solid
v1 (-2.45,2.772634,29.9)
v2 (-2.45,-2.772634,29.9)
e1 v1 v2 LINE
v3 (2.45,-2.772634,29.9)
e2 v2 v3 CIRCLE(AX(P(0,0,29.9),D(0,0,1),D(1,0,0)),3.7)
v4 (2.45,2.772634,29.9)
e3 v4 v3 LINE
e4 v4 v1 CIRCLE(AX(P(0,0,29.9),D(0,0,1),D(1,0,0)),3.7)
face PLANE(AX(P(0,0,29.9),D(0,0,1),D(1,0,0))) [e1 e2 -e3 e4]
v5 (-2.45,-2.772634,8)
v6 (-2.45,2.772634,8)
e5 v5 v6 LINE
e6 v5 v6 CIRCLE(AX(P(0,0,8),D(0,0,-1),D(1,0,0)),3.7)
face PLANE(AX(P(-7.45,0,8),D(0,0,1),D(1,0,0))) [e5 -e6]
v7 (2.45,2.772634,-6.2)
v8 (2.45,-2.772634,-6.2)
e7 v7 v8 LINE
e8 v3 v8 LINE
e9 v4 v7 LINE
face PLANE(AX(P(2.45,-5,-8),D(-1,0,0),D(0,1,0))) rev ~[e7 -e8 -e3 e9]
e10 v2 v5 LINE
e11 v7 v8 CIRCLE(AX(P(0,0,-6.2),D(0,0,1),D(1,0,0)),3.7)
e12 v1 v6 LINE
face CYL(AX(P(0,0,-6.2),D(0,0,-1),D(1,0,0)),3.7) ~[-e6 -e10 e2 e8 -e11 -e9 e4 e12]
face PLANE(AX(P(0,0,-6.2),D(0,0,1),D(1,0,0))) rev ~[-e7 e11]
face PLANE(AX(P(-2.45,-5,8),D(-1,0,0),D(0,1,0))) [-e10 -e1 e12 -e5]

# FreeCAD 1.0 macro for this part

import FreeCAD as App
import Part
import Sketcher
Q = App.Units.Quantity


def add_polygon(sketch, points):
    """Adds a closed chain of lines whose ends are joined by coincident constraints."""
    first, n = sketch.GeometryCount, len(points)
    for a, b in zip(points, points[1:] + points[:1]):
        sketch.addGeometry(Part.LineSegment(App.Vector(*a, 0), App.Vector(*b, 0)), False)
    for i in range(n):
        sketch.addConstraint(Sketcher.Constraint("Coincident", first + i, 2, first + (i + 1) % n, 1))

doc = App.newDocument("Part")
body = doc.addObject("PartDesign::Body", "Body")

sketch1 = body.newObject("Sketcher::SketchObject", "Sketch")
sketch1.AttachmentSupport = (doc.getObject("XY_Plane"), [""])
sketch1.MapMode = "FlatFace"
sketch1.AttachmentOffset = App.Placement(App.Vector(0, 0, 5), App.Rotation())
add_polygon(sketch1, [(-1.85, 5), (-1.85, -5), (8.15, -5), (8.15, 5)])
sketch1.addConstraint([
    Sketcher.Constraint("Vertical", 0),
    Sketcher.Constraint("Horizontal", 1),
    Sketcher.Constraint("Vertical", 2),
    Sketcher.Constraint("Horizontal", 3),
    Sketcher.Constraint("Equal", 3, 0),
    Sketcher.Constraint("DistanceX", 1, 1, 1, 2, Q("10 mm")),
    Sketcher.Constraint("DistanceY", 0, 2, -1, 1, Q("5 mm")),
    Sketcher.Constraint("DistanceX", 0, 2, -1, 1, Q("1.85 mm")),
])
pad1 = body.newObject("PartDesign::Pad", "Pad")
pad1.Profile = sketch1
pad1.Length = 40
body2 = doc.addObject("PartDesign::Body", "Body001")

sketch2 = body2.newObject("Sketcher::SketchObject", "Sketch001")
sketch2.AttachmentSupport = (doc.getObject("XY_Plane001"), [""])
sketch2.MapMode = "FlatFace"
sketch2.AttachmentOffset = App.Placement(App.Vector(0, 0, -11), App.Rotation())
add_polygon(sketch2, [(13.05, 5), (13.05, -5), (23.05, -5), (23.05, 5)])
sketch2.addConstraint([
    Sketcher.Constraint("Vertical", 0),
    Sketcher.Constraint("Horizontal", 1),
    Sketcher.Constraint("Vertical", 2),
    Sketcher.Constraint("Horizontal", 3),
    Sketcher.Constraint("Equal", 3, 0),
    Sketcher.Constraint("DistanceX", 1, 1, 1, 2, Q("10 mm")),
    Sketcher.Constraint("DistanceY", 0, 2, -1, 1, Q("5 mm")),
    Sketcher.Constraint("DistanceX", -1, 1, 0, 2, Q("13.05 mm")),
])
pad2 = body2.newObject("PartDesign::Pad", "Pad001")
pad2.Profile = sketch2
pad2.Length = 40
body3 = doc.addObject("PartDesign::Body", "Body002")

sketch3 = body3.newObject("Sketcher::SketchObject", "Sketch002")
sketch3.AttachmentSupport = (doc.getObject("XY_Plane002"), [""])
sketch3.MapMode = "FlatFace"
sketch3.AttachmentOffset = App.Placement(App.Vector(0, 0, -9.2), App.Rotation())
sketch3.addGeometry(Part.Circle(App.Vector(10.6, 0, 0), App.Vector(0, 0, 1), 3.7), False)
sketch3.addConstraint([
    Sketcher.Constraint("PointOnObject", 0, 3, -1),
    Sketcher.Constraint("Diameter", 0, Q("7.4 mm")),
    Sketcher.Constraint("DistanceX", -1, 1, 0, 3, Q("10.6 mm")),
])
pad3 = body3.newObject("PartDesign::Pad", "Pad002")
pad3.Profile = sketch3
pad3.Length = 36.1
doc.recompute()

boolean = body3.newObject("PartDesign::Boolean", "Boolean")
boolean.Type = "Cut"
boolean.addObjects([body2])
doc.recompute()

boolean2 = body3.newObject("PartDesign::Boolean", "Boolean001")
boolean2.Type = "Cut"
boolean2.addObjects([body])
body4 = doc.addObject("PartDesign::Body", "Body003")
doc.recompute()

body3.Placement = App.Placement(App.Vector(-10.6, 0, 3), App.Rotation(App.Vector(0, 0, 1), 0))
boolean3 = body4.newObject("PartDesign::Boolean", "Boolean002")
boolean3.Type = "Fuse"
boolean3.addObjects([body3])

doc.recompute()
